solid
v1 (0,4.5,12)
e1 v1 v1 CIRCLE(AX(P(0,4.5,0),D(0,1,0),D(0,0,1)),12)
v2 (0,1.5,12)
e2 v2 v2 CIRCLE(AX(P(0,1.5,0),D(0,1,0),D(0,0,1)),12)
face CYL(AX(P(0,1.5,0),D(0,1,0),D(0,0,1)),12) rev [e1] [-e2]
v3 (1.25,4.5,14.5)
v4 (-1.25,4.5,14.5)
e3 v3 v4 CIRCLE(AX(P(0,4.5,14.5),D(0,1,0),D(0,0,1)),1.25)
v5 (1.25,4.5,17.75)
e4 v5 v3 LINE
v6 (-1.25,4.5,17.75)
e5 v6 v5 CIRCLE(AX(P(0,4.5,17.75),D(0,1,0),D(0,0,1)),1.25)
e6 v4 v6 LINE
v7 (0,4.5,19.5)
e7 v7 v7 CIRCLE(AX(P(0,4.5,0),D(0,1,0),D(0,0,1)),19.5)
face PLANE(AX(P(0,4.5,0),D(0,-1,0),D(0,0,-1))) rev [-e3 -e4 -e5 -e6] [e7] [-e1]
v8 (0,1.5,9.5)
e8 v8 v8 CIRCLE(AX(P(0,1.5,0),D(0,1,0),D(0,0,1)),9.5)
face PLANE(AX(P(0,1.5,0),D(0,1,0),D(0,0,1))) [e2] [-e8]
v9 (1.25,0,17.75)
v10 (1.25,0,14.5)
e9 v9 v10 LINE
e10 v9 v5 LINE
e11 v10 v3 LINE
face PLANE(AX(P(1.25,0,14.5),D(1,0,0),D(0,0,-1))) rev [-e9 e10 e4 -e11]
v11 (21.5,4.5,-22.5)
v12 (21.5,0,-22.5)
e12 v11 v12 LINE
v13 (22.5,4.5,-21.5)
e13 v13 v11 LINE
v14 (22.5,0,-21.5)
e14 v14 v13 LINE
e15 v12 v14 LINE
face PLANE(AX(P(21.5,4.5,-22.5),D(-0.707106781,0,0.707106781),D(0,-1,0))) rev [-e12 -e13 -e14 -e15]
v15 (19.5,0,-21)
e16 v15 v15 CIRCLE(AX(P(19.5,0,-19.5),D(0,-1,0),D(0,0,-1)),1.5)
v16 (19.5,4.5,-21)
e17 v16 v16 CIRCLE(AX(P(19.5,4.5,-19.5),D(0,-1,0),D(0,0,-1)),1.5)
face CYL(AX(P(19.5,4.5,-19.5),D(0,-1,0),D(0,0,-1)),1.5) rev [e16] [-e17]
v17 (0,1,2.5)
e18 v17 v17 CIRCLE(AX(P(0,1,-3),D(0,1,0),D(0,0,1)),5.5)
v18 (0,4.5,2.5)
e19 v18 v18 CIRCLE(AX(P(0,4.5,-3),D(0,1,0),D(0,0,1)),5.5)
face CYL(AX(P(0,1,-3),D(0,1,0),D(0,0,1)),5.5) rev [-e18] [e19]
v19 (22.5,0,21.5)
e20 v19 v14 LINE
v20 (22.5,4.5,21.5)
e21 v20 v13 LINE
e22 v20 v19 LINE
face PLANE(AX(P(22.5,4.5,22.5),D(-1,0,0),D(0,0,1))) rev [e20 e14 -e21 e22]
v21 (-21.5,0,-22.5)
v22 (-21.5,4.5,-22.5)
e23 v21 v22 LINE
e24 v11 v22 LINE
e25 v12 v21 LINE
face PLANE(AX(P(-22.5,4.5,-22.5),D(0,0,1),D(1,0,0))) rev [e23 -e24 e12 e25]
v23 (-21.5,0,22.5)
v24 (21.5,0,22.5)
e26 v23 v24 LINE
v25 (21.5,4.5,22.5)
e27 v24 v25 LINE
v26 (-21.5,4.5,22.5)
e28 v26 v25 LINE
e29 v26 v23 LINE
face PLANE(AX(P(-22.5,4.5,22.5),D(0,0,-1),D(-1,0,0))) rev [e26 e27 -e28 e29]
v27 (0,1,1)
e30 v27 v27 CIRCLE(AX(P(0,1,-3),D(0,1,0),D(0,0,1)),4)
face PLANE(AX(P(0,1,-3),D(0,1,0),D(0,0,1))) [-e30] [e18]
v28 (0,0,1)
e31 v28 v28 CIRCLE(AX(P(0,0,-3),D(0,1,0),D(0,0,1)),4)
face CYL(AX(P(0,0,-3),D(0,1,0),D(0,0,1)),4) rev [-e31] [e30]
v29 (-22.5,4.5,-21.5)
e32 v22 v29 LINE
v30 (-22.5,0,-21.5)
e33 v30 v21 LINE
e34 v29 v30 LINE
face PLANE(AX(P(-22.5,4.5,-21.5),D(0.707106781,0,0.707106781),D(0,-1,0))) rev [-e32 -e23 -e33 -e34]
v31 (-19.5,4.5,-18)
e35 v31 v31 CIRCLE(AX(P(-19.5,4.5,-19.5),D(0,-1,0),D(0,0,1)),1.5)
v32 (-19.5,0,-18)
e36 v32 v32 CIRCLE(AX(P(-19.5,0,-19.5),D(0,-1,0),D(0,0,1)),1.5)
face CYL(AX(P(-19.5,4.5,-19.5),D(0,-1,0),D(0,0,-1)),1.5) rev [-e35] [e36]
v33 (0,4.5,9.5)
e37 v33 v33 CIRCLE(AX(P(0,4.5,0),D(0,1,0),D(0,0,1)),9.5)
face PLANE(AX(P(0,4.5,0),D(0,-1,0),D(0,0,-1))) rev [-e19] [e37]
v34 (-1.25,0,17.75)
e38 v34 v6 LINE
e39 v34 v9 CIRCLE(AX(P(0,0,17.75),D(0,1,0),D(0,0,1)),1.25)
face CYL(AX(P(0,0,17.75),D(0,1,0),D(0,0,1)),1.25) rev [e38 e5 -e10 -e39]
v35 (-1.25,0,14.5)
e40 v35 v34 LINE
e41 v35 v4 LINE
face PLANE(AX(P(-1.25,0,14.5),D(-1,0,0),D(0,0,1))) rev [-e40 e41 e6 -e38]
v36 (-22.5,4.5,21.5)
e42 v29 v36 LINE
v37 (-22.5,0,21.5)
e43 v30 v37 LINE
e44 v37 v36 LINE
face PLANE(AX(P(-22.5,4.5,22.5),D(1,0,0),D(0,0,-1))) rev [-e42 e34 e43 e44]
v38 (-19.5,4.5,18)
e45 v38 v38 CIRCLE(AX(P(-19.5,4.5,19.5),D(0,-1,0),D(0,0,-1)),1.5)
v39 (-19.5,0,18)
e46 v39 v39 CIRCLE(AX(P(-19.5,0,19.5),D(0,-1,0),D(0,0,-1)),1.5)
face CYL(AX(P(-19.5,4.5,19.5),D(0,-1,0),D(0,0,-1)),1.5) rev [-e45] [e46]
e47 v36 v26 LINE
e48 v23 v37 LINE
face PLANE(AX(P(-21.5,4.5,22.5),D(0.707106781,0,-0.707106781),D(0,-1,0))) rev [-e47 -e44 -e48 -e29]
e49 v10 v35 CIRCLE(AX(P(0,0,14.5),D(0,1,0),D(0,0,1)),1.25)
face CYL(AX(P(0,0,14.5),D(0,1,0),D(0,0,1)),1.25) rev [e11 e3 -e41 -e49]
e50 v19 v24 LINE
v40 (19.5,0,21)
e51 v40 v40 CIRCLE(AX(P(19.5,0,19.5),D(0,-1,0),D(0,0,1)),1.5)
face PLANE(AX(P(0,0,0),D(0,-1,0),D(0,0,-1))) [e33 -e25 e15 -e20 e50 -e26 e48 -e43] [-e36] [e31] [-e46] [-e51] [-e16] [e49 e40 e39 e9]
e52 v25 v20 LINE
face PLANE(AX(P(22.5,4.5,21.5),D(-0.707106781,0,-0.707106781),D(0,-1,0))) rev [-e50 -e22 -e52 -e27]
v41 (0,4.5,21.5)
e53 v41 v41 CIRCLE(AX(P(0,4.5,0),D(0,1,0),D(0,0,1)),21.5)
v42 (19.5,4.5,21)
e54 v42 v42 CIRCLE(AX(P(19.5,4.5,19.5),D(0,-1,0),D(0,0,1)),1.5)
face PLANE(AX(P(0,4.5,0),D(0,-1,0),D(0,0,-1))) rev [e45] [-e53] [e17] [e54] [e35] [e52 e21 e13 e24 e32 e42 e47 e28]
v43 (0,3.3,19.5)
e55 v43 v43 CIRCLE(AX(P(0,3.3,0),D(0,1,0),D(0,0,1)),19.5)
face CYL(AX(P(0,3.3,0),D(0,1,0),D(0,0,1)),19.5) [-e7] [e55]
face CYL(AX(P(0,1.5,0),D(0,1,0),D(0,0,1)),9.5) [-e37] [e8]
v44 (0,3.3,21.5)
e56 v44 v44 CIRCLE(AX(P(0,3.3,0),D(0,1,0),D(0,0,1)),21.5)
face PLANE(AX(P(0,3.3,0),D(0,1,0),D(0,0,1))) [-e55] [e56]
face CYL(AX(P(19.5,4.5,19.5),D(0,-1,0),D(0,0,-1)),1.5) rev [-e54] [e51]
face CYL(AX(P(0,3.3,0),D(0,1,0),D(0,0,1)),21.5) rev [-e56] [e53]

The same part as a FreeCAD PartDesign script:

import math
import FreeCAD as App
import Part
import Sketcher

V = App.Vector
Q = App.Units.Quantity


def edges_at(feature, points):
    """Names of the edges that pass closest to the given points."""
    edges = feature.Shape.Edges
    near = lambda p: min(range(len(edges)), key=lambda i: edges[i].distToShape(Part.Vertex(*p))[0])
    return sorted({f"Edge{near(p) + 1}" for p in points})


def add_polygon(sketch, points):
    """Adds a closed chain of lines whose ends are joined by coincident constraints."""
    first, n = sketch.GeometryCount, len(points)
    for a, b in zip(points, points[1:] + points[:1]):
        sketch.addGeometry(Part.LineSegment(App.Vector(*a, 0), App.Vector(*b, 0)), False)
    for i in range(n):
        sketch.addConstraint(Sketcher.Constraint("Coincident", first + i, 2, first + (i + 1) % n, 1))

doc = App.newDocument("Part")
body = doc.addObject("PartDesign::Body", "Body")

# Sketch on XZ plane
sketch1 = body.newObject("Sketcher::SketchObject", "Sketch")
sketch1.AttachmentSupport = (doc.getObject("XZ_Plane"), [""])
sketch1.MapMode = "FlatFace"
add_polygon(sketch1, [(-22, -22), (-22, 22), (22, 22), (22, -22)])  # lines 0-3
sketch1.addConstraint([
    Sketcher.Constraint("Vertical", 0),
    Sketcher.Constraint("Horizontal", 1),
    Sketcher.Constraint("Vertical", 2),
    Sketcher.Constraint("Horizontal", 3),
    Sketcher.Constraint("Symmetric", 0, 2, 2, 2, -1, 1),
    Sketcher.Constraint("Equal", 3, 0),
    Sketcher.Constraint("DistanceX", 1, 1, 1, 2, Q("45 mm")),
])
pad1 = body.newObject("PartDesign::Pad", "Pad")
pad1.Profile = sketch1
pad1.Length = 4.5
pad1.Reversed = True

# Sketch on XZ plane
sketch2 = body.newObject("Sketcher::SketchObject", "Sketch001")
sketch2.AttachmentSupport = (doc.getObject("XZ_Plane"), [""])
sketch2.MapMode = "FlatFace"
sketch2.AttachmentOffset = App.Placement(V(0, 0, -4.5), App.Rotation())
sketch2.addGeometry(Part.Circle(V(0, -3, 0), V(0, 0, 1), 6), False)
sketch2.addConstraint([
    Sketcher.Constraint("PointOnObject", 0, 3, -2),
    Sketcher.Constraint("Diameter", 0, Q("11 mm")),
    Sketcher.Constraint("DistanceY", 0, 3, -1, 1, Q("3 mm")),
])
pocket1 = body.newObject("PartDesign::Pocket", "Pocket")
pocket1.Profile = sketch2
pocket1.Length = 3.5
pocket1.Reversed = True

# Sketch on XZ plane
sketch3 = body.newObject("Sketcher::SketchObject", "Sketch002")
sketch3.AttachmentSupport = (doc.getObject("XZ_Plane"), [""])
sketch3.MapMode = "FlatFace"
sketch3.AttachmentOffset = App.Placement(V(0, 0, -1), App.Rotation())
sketch3.addGeometry(Part.Circle(V(0, -3, 0), V(0, 0, 1), 4), False)
sketch3.addConstraint([
    Sketcher.Constraint("PointOnObject", 0, 3, -2),
    Sketcher.Constraint("Diameter", 0, Q("8 mm")),
    Sketcher.Constraint("DistanceY", 0, 3, -1, 1, Q("3 mm")),
])
pocket2 = body.newObject("PartDesign::Pocket", "Pocket001")
pocket2.Profile = sketch3
pocket2.Type = "ThroughAll"
pocket2.Reversed = True

# Sketch on XZ plane
sketch4 = body.newObject("Sketcher::SketchObject", "Sketch003")
sketch4.AttachmentSupport = (doc.getObject("XZ_Plane"), [""])
sketch4.MapMode = "FlatFace"
sketch4.AttachmentOffset = App.Placement(V(0, 0, -4.5), App.Rotation())
sketch4.addGeometry([
    Part.Circle(V(0, 0, 0), V(0, 0, 1), 12),
    Part.Circle(V(0, 0, 0), V(0, 0, 1), 10),
], False)
sketch4.addConstraint([
    Sketcher.Constraint("Coincident", 0, 3, -1, 1),
    Sketcher.Constraint("Coincident", 1, 3, -1, 1),
    Sketcher.Constraint("Diameter", 0, Q("24 mm")),
    Sketcher.Constraint("Diameter", 1, Q("19 mm")),
])
pocket3 = body.newObject("PartDesign::Pocket", "Pocket002")
pocket3.Profile = sketch4
pocket3.Length = 3
pocket3.Reversed = True

# Sketch on XZ plane
sketch5 = body.newObject("Sketcher::SketchObject", "Sketch004")
sketch5.AttachmentSupport = (doc.getObject("XZ_Plane"), [""])
sketch5.MapMode = "FlatFace"
sketch5.AttachmentOffset = App.Placement(V(0, 0, -4.5), App.Rotation())
sketch5.addGeometry([
    Part.Circle(V(0, 0, 0), V(0, 0, 1), 22),
    Part.Circle(V(0, 0, 0), V(0, 0, 1), 20),
], False)
sketch5.addConstraint([
    Sketcher.Constraint("Coincident", 0, 3, -1, 1),
    Sketcher.Constraint("Coincident", 1, 3, -1, 1),
    Sketcher.Constraint("Diameter", 0, Q("43 mm")),
    Sketcher.Constraint("Diameter", 1, Q("39 mm")),
])
pocket4 = body.newObject("PartDesign::Pocket", "Pocket003")
pocket4.Profile = sketch5
pocket4.Length = 1.2
pocket4.Reversed = True

# Sketch on XZ plane
sketch6 = body.newObject("Sketcher::SketchObject", "Sketch005")
sketch6.AttachmentSupport = (doc.getObject("XZ_Plane"), [""])
sketch6.MapMode = "FlatFace"
sketch6.AttachmentOffset = App.Placement(V(0, 0, -4.5), App.Rotation())
sketch6.addGeometry([
    Part.LineSegment(V(1.2, 17.8, 0), V(1.2, 14.5, 0)),
    Part.ArcOfCircle(Part.Circle(V(0, 14.5, 0), V(0, 0, 1), 1.2), math.radians(180), math.radians(360)),
    Part.LineSegment(V(-1.2, 14.5, 0), V(-1.2, 17.8, 0)),
    Part.ArcOfCircle(Part.Circle(V(0, 17.8, 0), V(0, 0, 1), 1.2), math.radians(0), math.radians(180)),
], False)
sketch6.addConstraint([
    Sketcher.Constraint("Tangent", 0, 2, 1, 2),
    Sketcher.Constraint("Tangent", 1, 1, 2, 1),
    Sketcher.Constraint("Tangent", 2, 2, 3, 2),
    Sketcher.Constraint("Tangent", 3, 1, 0, 1),
    Sketcher.Constraint("Vertical", 0),
    Sketcher.Constraint("Vertical", 2),
    Sketcher.Constraint("PointOnObject", 1, 3, -2),
    Sketcher.Constraint("Radius", 1, Q("1.25 mm")),
    Sketcher.Constraint("DistanceY", 0, 2, 0, 1, Q("3.25 mm")),
    Sketcher.Constraint("DistanceY", -1, 1, 1, 3, Q("14.5 mm")),
])
pocket5 = body.newObject("PartDesign::Pocket", "Pocket004")
pocket5.Profile = sketch6
pocket5.Type = "ThroughAll"
pocket5.Reversed = True

# Sketch on XZ plane
sketch7 = body.newObject("Sketcher::SketchObject", "Sketch006")
sketch7.AttachmentSupport = (doc.getObject("XZ_Plane"), [""])
sketch7.MapMode = "FlatFace"
sketch7.addGeometry([
    Part.Circle(V(-19.5, 19.5, 0), V(0, 0, 1), 1.5),
    Part.Circle(V(19.5, 19.5, 0), V(0, 0, 1), 1.5),
    Part.Circle(V(19.5, -19.5, 0), V(0, 0, 1), 1.5),
    Part.Circle(V(-19.5, -19.5, 0), V(0, 0, 1), 1.5),
], False)
sketch7.addConstraint([
    Sketcher.Constraint("Equal", 0, 1),
    Sketcher.Constraint("Equal", 1, 2),
    Sketcher.Constraint("Equal", 2, 3),
    Sketcher.Constraint("Symmetric", 0, 3, 2, 3, -1, 1),
    Sketcher.Constraint("Symmetric", 1, 3, 3, 3, -1, 1),
    Sketcher.Constraint("Symmetric", 0, 3, 1, 3, -2),
    Sketcher.Constraint("Diameter", 0, Q("3 mm")),
    Sketcher.Constraint("DistanceX", 0, 3, 1, 3, Q("39 mm")),
    Sketcher.Constraint("DistanceY", 2, 3, 1, 3, Q("39 mm")),
])
pocket6 = body.newObject("PartDesign::Pocket", "Pocket005")
pocket6.Profile = sketch7
pocket6.Type = "ThroughAll"
doc.recompute()

chamfer = body.newObject("PartDesign::Chamfer", "Chamfer")
chamfer.Base = (pocket6, edges_at(pocket6, [
    (22.5, 2.25, 22.5),
    (-22.5, 2.25, 22.5),
    (-22.5, 2.25, -22.5),
    (22.5, 2.25, -22.5),
]))
chamfer.Size = 1

doc.recompute()
